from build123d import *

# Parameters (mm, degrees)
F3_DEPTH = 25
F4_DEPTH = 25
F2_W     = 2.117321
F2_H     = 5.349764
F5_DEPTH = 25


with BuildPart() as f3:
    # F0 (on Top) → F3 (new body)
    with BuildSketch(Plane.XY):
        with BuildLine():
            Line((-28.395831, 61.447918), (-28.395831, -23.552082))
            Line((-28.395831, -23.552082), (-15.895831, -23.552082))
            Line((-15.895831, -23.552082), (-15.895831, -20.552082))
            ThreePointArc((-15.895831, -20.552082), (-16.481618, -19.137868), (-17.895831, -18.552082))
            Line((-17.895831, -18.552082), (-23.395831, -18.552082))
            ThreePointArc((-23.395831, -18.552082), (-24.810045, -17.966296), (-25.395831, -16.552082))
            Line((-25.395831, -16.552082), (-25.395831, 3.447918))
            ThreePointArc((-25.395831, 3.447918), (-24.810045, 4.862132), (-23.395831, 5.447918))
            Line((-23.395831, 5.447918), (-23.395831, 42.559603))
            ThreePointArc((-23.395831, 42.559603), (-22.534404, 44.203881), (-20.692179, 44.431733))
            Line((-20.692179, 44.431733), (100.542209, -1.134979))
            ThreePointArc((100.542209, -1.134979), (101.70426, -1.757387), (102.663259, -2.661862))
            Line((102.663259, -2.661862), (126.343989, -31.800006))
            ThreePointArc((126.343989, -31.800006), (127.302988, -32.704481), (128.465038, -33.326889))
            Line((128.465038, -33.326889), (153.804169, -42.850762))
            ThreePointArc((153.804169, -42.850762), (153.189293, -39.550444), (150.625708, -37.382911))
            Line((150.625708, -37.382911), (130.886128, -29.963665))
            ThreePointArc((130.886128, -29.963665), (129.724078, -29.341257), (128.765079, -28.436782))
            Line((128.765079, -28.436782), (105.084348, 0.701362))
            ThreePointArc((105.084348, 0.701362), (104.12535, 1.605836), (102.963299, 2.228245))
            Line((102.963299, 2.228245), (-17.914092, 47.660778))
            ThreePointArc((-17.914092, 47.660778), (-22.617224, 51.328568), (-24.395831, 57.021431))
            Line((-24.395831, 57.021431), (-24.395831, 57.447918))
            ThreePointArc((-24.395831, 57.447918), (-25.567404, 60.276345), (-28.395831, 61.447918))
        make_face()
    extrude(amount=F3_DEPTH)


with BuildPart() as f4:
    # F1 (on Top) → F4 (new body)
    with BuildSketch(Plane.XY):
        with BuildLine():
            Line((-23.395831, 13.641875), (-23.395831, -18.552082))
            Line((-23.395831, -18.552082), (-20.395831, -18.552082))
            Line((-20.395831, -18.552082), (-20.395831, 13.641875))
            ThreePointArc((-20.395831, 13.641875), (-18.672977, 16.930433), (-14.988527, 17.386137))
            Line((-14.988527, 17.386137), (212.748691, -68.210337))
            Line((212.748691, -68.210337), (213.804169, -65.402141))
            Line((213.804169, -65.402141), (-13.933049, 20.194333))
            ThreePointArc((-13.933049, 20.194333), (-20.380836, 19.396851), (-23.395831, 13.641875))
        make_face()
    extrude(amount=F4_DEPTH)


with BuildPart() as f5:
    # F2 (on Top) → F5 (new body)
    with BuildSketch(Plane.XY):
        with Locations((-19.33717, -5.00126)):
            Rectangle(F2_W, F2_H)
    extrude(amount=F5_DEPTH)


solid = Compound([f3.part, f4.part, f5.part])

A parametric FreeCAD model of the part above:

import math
import FreeCAD as App
import Part
import Sketcher
from FreeCAD import Vector

doc = App.newDocument("Part")
body = doc.addObject("PartDesign::Body", "Body")

# Sketch on XY plane
sketch1 = doc.addObject("Sketcher::SketchObject", "Sketch")
body.addObject(sketch1)
sketch1.AttachmentSupport = (doc.XY_Plane, [""])
sketch1.MapMode = "FlatFace"
sketch1.addGeometry(Part.LineSegment(Vector(-28.395831, 61.447918, 0), Vector(-28.395831, -23.552082, 0)), False)
sketch1.addGeometry(Part.LineSegment(Vector(-28.395831, -23.552082, 0), Vector(-15.895831, -23.552082, 0)), False)
sketch1.addGeometry(Part.LineSegment(Vector(-15.895831, -23.552082, 0), Vector(-15.895831, -20.552082, 0)), False)
sketch1.addGeometry(Part.ArcOfCircle(Part.Circle(Vector(-17.895831, -20.552082, 0), Vector(0, 0, 1), 2), math.radians(0.000006), math.radians(89.999994)), False)
sketch1.addGeometry(Part.LineSegment(Vector(-17.895831, -18.552082, 0), Vector(-23.395831, -18.552082, 0)), False)
sketch1.addGeometry(Part.ArcOfCircle(Part.Circle(Vector(-23.395832, -16.552083, 0), Vector(0, 0, 1), 1.999999), math.radians(179.999957), math.radians(270.000043)), False)
sketch1.addGeometry(Part.LineSegment(Vector(-25.395831, -16.552082, 0), Vector(-25.395831, 3.447918, 0)), False)
sketch1.addGeometry(Part.ArcOfCircle(Part.Circle(Vector(-23.395832, 3.447919, 0), Vector(0, 0, 1), 1.999999), math.radians(89.999957), math.radians(180.000043)), False)
sketch1.addGeometry(Part.LineSegment(Vector(-23.395831, 5.447918, 0), Vector(-23.395831, 42.559603, 0)), False)
sketch1.addGeometry(Part.ArcOfCircle(Part.Circle(Vector(-21.395831, 42.559603, 0), Vector(0, 0, 1), 2), math.radians(69.400939), math.radians(179.999995)), False)
sketch1.addGeometry(Part.LineSegment(Vector(-20.692179, 44.431733, 0), Vector(100.542209, -1.134979, 0)), False)
sketch1.addGeometry(Part.ArcOfCircle(Part.Circle(Vector(98.783084, -5.815301, 0), Vector(0, 0, 1), 4.999993), math.radians(39.100946), math.radians(69.400993)), False)
sketch1.addGeometry(Part.LineSegment(Vector(102.663259, -2.661862, 0), Vector(126.343989, -31.800006, 0)), False)
sketch1.addGeometry(Part.ArcOfCircle(Part.Circle(Vector(130.224167, -28.646563, 0), Vector(0, 0, 1), 4.999998), math.radians(-140.899046), math.radians(-110.59904)), False)
sketch1.addGeometry(Part.LineSegment(Vector(128.465038, -33.326889, 0), Vector(153.804169, -42.850762, 0)), False)
sketch1.addGeometry(Part.ArcOfCircle(Part.Circle(Vector(148.866578, -42.063238, 0), Vector(0, 0, 1), 5), math.radians(-9.062095), math.radians(69.400956)), False)
sketch1.addGeometry(Part.LineSegment(Vector(150.625708, -37.382911, 0), Vector(130.886128, -29.963665, 0)), False)
sketch1.addGeometry(Part.ArcOfCircle(Part.Circle(Vector(132.645257, -25.283339, 0), Vector(0, 0, 1), 4.999998), math.radians(-140.899046), math.radians(-110.59904)), False)
sketch1.addGeometry(Part.LineSegment(Vector(128.765079, -28.436782, 0), Vector(105.084348, 0.701362, 0)), False)
sketch1.addGeometry(Part.ArcOfCircle(Part.Circle(Vector(101.204166, -2.452086, 0), Vector(0, 0, 1), 5.000005), math.radians(39.100974), math.radians(69.40094)), False)
sketch1.addGeometry(Part.LineSegment(Vector(102.963299, 2.228245, 0), Vector(-17.914092, 47.660778, 0)), False)
sketch1.addGeometry(Part.ArcOfCircle(Part.Circle(Vector(-14.395831, 57.021432, 0), Vector(0, 0, 1), 10), math.radians(-179.999996), math.radians(-110.599047)), False)
sketch1.addGeometry(Part.LineSegment(Vector(-24.395831, 57.021431, 0), Vector(-24.395831, 57.447918, 0)), False)
sketch1.addGeometry(Part.ArcOfCircle(Part.Circle(Vector(-28.395831, 57.447918, 0), Vector(0, 0, 1), 4), math.radians(0.000006), math.radians(89.999994)), False)
sketch1.addConstraint(Sketcher.Constraint("Coincident", 0, 2, 1, 1))
sketch1.addConstraint(Sketcher.Constraint("Coincident", 1, 2, 2, 1))
sketch1.addConstraint(Sketcher.Constraint("Tangent", 2, 2, 3, 1))
sketch1.addConstraint(Sketcher.Constraint("Tangent", 3, 2, 4, 1))
sketch1.addConstraint(Sketcher.Constraint("Tangent", 4, 2, 5, 2))
sketch1.addConstraint(Sketcher.Constraint("Tangent", 5, 1, 6, 1))
sketch1.addConstraint(Sketcher.Constraint("Tangent", 6, 2, 7, 2))
sketch1.addConstraint(Sketcher.Constraint("Coincident", 7, 1, 8, 1))
sketch1.addConstraint(Sketcher.Constraint("Tangent", 8, 2, 9, 2))
sketch1.addConstraint(Sketcher.Constraint("Tangent", 9, 1, 10, 1))
sketch1.addConstraint(Sketcher.Constraint("Tangent", 10, 2, 11, 2))
sketch1.addConstraint(Sketcher.Constraint("Tangent", 11, 1, 12, 1))
sketch1.addConstraint(Sketcher.Constraint("Tangent", 12, 2, 13, 1))
sketch1.addConstraint(Sketcher.Constraint("Tangent", 13, 2, 14, 1))
sketch1.addConstraint(Sketcher.Constraint("Coincident", 14, 2, 15, 1))
sketch1.addConstraint(Sketcher.Constraint("Tangent", 15, 2, 16, 1))
sketch1.addConstraint(Sketcher.Constraint("Tangent", 16, 2, 17, 2))
sketch1.addConstraint(Sketcher.Constraint("Tangent", 17, 1, 18, 1))
sketch1.addConstraint(Sketcher.Constraint("Tangent", 18, 2, 19, 1))
sketch1.addConstraint(Sketcher.Constraint("Tangent", 19, 2, 20, 1))
sketch1.addConstraint(Sketcher.Constraint("Tangent", 20, 2, 21, 2))
sketch1.addConstraint(Sketcher.Constraint("Tangent", 21, 1, 22, 1))
sketch1.addConstraint(Sketcher.Constraint("Tangent", 22, 2, 23, 1))
sketch1.addConstraint(Sketcher.Constraint("Coincident", 23, 2, 0, 1))
sketch1.addConstraint(Sketcher.Constraint("Vertical", 0))
sketch1.addConstraint(Sketcher.Constraint("Horizontal", 1))
sketch1.addConstraint(Sketcher.Constraint("Vertical", 2))
sketch1.addConstraint(Sketcher.Constraint("Horizontal", 4))
sketch1.addConstraint(Sketcher.Constraint("Vertical", 6))
sketch1.addConstraint(Sketcher.Constraint("Vertical", 8))
sketch1.addConstraint(Sketcher.Constraint("Vertical", 22))
sketch1.addConstraint(Sketcher.Constraint("Equal", 3, 5))
sketch1.addConstraint(Sketcher.Constraint("Equal", 5, 7))
sketch1.addConstraint(Sketcher.Constraint("Equal", 7, 9))
sketch1.addConstraint(Sketcher.Constraint("Equal", 13, 15))
sketch1.addConstraint(Sketcher.Constraint("Equal", 15, 17))
sketch1.addConstraint(Sketcher.Constraint("Parallel", 10, 14))
sketch1.addConstraint(Sketcher.Constraint("Parallel", 14, 16))
sketch1.addConstraint(Sketcher.Constraint("Parallel", 12, 18))
sketch1.addConstraint(Sketcher.Constraint("Parallel", 16, 20))
sketch1.addConstraint(Sketcher.Constraint("Vertical", 23, 3, 0, 2))
sketch1.addConstraint(Sketcher.Constraint("Vertical", 4, 2, 7, 1))
sketch1.addConstraint(Sketcher.Constraint("Equal", 12, 18))
sketch1.addConstraint(Sketcher.Constraint("Radius", 3, 2.0))
sketch1.addConstraint(Sketcher.Constraint("Radius", 13, 4.999998))
sketch1.addConstraint(Sketcher.Constraint("Radius", 21, 10.0))
sketch1.addConstraint(Sketcher.Constraint("Radius", 23, 4.0))
sketch1.addConstraint(Sketcher.Constraint("DistanceY", 0, 2, 0, 1, 85.0))
sketch1.addConstraint(Sketcher.Constraint("DistanceY", 2, 1, 2, 2, 3.0))
sketch1.addConstraint(Sketcher.Constraint("DistanceY", 6, 1, 6, 2, 20.0))
sketch1.addConstraint(Sketcher.Constraint("DistanceX", 1, 1, 1, 2, 12.5))
sketch1.addConstraint(Sketcher.Constraint("DistanceX", 4, 2, 4, 1, 5.5))
sketch1.addConstraint(Sketcher.Constraint("DistanceX", 3, 3, 13, 3, 148.119998))
sketch1.addConstraint(Sketcher.Constraint("DistanceX", 19, 3, 13, 3, 29.020001))
sketch1.addConstraint(Sketcher.Constraint("DistanceX", 13, 3, 14, 2, 23.580002))
sketch1.addConstraint(Sketcher.Constraint("Radius", 11, 4.999993))
sketch1.addConstraint(Sketcher.Constraint("Radius", 19, 5.000005))
sketch1.addConstraint(Sketcher.Constraint("DistanceX", 11, 1, 17, 3, 29.981998))
sketch1.addConstraint(Sketcher.Constraint("DistanceY", 11, 3, -1, 1, 5.815301))
sketch1.addConstraint(Sketcher.Constraint("DistanceX", -1, 1, 19, 2, 102.963299))
sketch1.addConstraint(Sketcher.Constraint("DistanceY", 15, 3, 17, 3, 16.779899))
sketch1.addConstraint(Sketcher.Constraint("DistanceY", 9, 1, 21, 3, 12.589699))
sketch1.addConstraint(Sketcher.Constraint("DistanceY", 13, 3, 11, 1, 25.984701))
sketch1.addConstraint(Sketcher.Constraint("DistanceY", 8, 1, 8, 2, 37.111685))
pad1 = doc.addObject("PartDesign::Pad", "Pad")
body.addObject(pad1)
pad1.Profile = sketch1
pad1.Length = 25
body2 = doc.addObject("PartDesign::Body", "Body001")

# Sketch on XY plane
sketch2 = doc.addObject("Sketcher::SketchObject", "Sketch001")
body2.addObject(sketch2)
sketch2.AttachmentSupport = (doc.getObject("XY_Plane001"), [""])
sketch2.MapMode = "FlatFace"
sketch2.addGeometry(Part.LineSegment(Vector(-23.395831, 13.641875, 0), Vector(-23.395831, -18.552082, 0)), False)
sketch2.addGeometry(Part.LineSegment(Vector(-23.395831, -18.552082, 0), Vector(-20.395831, -18.552082, 0)), False)
sketch2.addGeometry(Part.LineSegment(Vector(-20.395831, -18.552082, 0), Vector(-20.395831, 13.641875, 0)), False)
sketch2.addGeometry(Part.ArcOfCircle(Part.Circle(Vector(-16.395832, 13.641877, 0), Vector(0, 0, 1), 3.999999), math.radians(69.400939), math.radians(180.000023)), False)
sketch2.addGeometry(Part.LineSegment(Vector(-14.988527, 17.386137, 0), Vector(212.748691, -68.210337, 0)), False)
sketch2.addGeometry(Part.LineSegment(Vector(212.748691, -68.210337, 0), Vector(213.804169, -65.402141, 0)), False)
sketch2.addGeometry(Part.LineSegment(Vector(213.804169, -65.402141, 0), Vector(-13.933049, 20.194333, 0)), False)
sketch2.addGeometry(Part.ArcOfCircle(Part.Circle(Vector(-16.395832, 13.641877, 0), Vector(0, 0, 1), 6.999999), math.radians(69.400944), math.radians(180.000015)), False)
sketch2.addConstraint(Sketcher.Constraint("Coincident", 0, 2, 1, 1))
sketch2.addConstraint(Sketcher.Constraint("Coincident", 1, 2, 2, 1))
sketch2.addConstraint(Sketcher.Constraint("Tangent", 2, 2, 3, 2))
sketch2.addConstraint(Sketcher.Constraint("Tangent", 3, 1, 4, 1))
sketch2.addConstraint(Sketcher.Constraint("Coincident", 4, 2, 5, 1))
sketch2.addConstraint(Sketcher.Constraint("Coincident", 5, 2, 6, 1))
sketch2.addConstraint(Sketcher.Constraint("Tangent", 6, 2, 7, 1))
sketch2.addConstraint(Sketcher.Constraint("Tangent", 7, 2, 0, 1))
sketch2.addConstraint(Sketcher.Constraint("Vertical", 0))
sketch2.addConstraint(Sketcher.Constraint("Horizontal", 1))
sketch2.addConstraint(Sketcher.Constraint("Vertical", 2))
sketch2.addConstraint(Sketcher.Constraint("Coincident", 7, 3, 3, 3))
sketch2.addConstraint(Sketcher.Constraint("Perpendicular", 4, 5))
sketch2.addConstraint(Sketcher.Constraint("Perpendicular", 5, 6))
sketch2.addConstraint(Sketcher.Constraint("Radius", 3, 3.999999))
sketch2.addConstraint(Sketcher.Constraint("Radius", 7, 6.999999))
sketch2.addConstraint(Sketcher.Constraint("DistanceX", 1, 2, 5, 2, 234.2))
sketch2.addConstraint(Sketcher.Constraint("Distance", 4, 243.291999))
sketch2.addConstraint(Sketcher.Constraint("DistanceY", 0, 2, 0, 1, 32.193957))
sketch2.addConstraint(Sketcher.Constraint("DistanceX", 3, 3, -1, 1, 16.395832))
sketch2.addConstraint(Sketcher.Constraint("DistanceY", 0, 2, -1, 1, 18.552082))
pad2 = doc.addObject("PartDesign::Pad", "Pad001")
body2.addObject(pad2)
pad2.Profile = sketch2
pad2.Length = 25
body3 = doc.addObject("PartDesign::Body", "Body002")

# Sketch on XY plane
sketch3 = doc.addObject("Sketcher::SketchObject", "Sketch002")
body3.addObject(sketch3)
sketch3.AttachmentSupport = (doc.getObject("XY_Plane002"), [""])
sketch3.MapMode = "FlatFace"
sketch3.addGeometry(Part.LineSegment(Vector(-20.39583, -2.326378, 0), Vector(-20.39583, -7.676142, 0)), False)
sketch3.addGeometry(Part.LineSegment(Vector(-20.39583, -7.676142, 0), Vector(-18.278509, -7.676142, 0)), False)
sketch3.addGeometry(Part.LineSegment(Vector(-18.278509, -7.676142, 0), Vector(-18.278509, -2.326378, 0)), False)
sketch3.addGeometry(Part.LineSegment(Vector(-18.278509, -2.326378, 0), Vector(-20.39583, -2.326378, 0)), False)
sketch3.addConstraint(Sketcher.Constraint("Coincident", 0, 2, 1, 1))
sketch3.addConstraint(Sketcher.Constraint("Coincident", 1, 2, 2, 1))
sketch3.addConstraint(Sketcher.Constraint("Coincident", 2, 2, 3, 1))
sketch3.addConstraint(Sketcher.Constraint("Coincident", 3, 2, 0, 1))
sketch3.addConstraint(Sketcher.Constraint("Vertical", 0))
sketch3.addConstraint(Sketcher.Constraint("Horizontal", 1))
sketch3.addConstraint(Sketcher.Constraint("Vertical", 2))
sketch3.addConstraint(Sketcher.Constraint("Horizontal", 3))
sketch3.addConstraint(Sketcher.Constraint("DistanceX", 1, 1, 1, 2, 2.117321))
sketch3.addConstraint(Sketcher.Constraint("DistanceY", 0, 2, 0, 1, 5.349764))
sketch3.addConstraint(Sketcher.Constraint("DistanceX", 0, 2, -1, 1, 20.39583))
sketch3.addConstraint(Sketcher.Constraint("DistanceY", 0, 2, -1, 1, 7.676142))
pad3 = doc.addObject("PartDesign::Pad", "Pad002")
body3.addObject(pad3)
pad3.Profile = sketch3
pad3.Length = 25

doc.recompute()
